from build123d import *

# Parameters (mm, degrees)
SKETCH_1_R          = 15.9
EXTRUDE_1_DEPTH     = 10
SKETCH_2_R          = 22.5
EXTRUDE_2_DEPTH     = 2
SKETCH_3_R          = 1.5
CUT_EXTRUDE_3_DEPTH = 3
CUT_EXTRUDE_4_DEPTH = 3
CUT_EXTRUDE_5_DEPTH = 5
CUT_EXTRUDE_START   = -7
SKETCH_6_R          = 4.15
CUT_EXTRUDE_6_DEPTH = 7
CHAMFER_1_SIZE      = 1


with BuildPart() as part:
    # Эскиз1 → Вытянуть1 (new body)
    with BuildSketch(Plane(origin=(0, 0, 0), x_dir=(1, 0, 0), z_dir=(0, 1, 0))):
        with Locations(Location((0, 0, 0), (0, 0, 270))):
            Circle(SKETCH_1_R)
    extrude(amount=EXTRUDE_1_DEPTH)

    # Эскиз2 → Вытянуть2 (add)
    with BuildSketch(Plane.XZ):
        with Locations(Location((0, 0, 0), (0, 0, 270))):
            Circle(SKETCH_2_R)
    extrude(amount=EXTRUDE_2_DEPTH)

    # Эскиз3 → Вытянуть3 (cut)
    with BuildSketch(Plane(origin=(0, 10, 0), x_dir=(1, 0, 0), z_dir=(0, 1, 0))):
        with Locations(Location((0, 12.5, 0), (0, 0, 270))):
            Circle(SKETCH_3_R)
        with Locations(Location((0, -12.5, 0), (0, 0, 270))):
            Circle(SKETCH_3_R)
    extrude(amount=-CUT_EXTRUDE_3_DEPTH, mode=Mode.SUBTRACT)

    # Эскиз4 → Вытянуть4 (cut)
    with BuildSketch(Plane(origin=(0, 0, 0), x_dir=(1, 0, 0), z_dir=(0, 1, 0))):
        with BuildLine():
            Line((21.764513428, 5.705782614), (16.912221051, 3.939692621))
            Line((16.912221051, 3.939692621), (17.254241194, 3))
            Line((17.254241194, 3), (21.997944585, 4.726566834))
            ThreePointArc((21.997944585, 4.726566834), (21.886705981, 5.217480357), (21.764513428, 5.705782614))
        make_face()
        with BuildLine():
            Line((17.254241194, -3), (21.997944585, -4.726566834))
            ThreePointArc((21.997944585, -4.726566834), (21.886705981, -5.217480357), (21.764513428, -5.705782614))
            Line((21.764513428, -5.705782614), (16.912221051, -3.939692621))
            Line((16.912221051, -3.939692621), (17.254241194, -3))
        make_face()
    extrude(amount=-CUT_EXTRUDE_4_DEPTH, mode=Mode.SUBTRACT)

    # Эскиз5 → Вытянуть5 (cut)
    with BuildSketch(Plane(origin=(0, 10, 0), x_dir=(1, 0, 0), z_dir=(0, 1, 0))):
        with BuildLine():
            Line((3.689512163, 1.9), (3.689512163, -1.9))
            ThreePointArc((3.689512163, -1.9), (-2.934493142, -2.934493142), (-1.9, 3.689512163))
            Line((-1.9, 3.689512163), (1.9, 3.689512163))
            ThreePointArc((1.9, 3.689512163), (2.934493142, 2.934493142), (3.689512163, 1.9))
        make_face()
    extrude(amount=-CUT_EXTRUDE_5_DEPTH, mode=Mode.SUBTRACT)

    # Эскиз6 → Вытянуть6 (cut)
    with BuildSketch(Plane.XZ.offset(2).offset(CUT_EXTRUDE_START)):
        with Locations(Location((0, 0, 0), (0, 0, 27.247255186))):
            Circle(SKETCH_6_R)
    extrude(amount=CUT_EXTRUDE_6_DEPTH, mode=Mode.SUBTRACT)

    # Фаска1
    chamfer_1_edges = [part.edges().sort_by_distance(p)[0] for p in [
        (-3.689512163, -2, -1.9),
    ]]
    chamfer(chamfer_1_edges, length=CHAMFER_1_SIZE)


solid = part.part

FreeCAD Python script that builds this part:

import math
import FreeCAD as App
import Part
import Sketcher

V = App.Vector
Q = App.Units.Quantity


def edges_at(feature, points):
    """Names of the edges that pass closest to the given points."""
    edges = feature.Shape.Edges
    near = lambda p: min(range(len(edges)), key=lambda i: edges[i].distToShape(Part.Vertex(*p))[0])
    return sorted({f"Edge{near(p) + 1}" for p in points})

doc = App.newDocument("Part")
body = doc.addObject("PartDesign::Body", "Body")

# Sketch on XZ plane
sketch1 = doc.addObject("Sketcher::SketchObject", "Sketch")
body.addObject(sketch1)
sketch1.AttachmentSupport = (doc.XZ_Plane, [""])
sketch1.MapMode = "FlatFace"
sketch1.addGeometry(Part.Circle(V(0, 0, 0), V(0, 0, 1), 16), False)
sketch1.addConstraint([
    Sketcher.Constraint("Coincident", 0, 3, -1, 1),
    Sketcher.Constraint("Diameter", 0, Q("31.8 mm")),
])
pad1 = doc.addObject("PartDesign::Pad", "Pad")
body.addObject(pad1)
pad1.Profile = sketch1
pad1.Length = 10
pad1.Reversed = True

# Sketch on XZ plane
sketch2 = doc.addObject("Sketcher::SketchObject", "Sketch001")
body.addObject(sketch2)
sketch2.AttachmentSupport = (doc.XZ_Plane, [""])
sketch2.MapMode = "FlatFace"
sketch2.addGeometry(Part.Circle(V(0, 0, 0), V(0, 0, 1), 22), False)
sketch2.addConstraint([
    Sketcher.Constraint("Coincident", 0, 3, -1, 1),
    Sketcher.Constraint("Diameter", 0, Q("45 mm")),
])
pad2 = doc.addObject("PartDesign::Pad", "Pad001")
body.addObject(pad2)
pad2.Profile = sketch2
pad2.Length = 2

# Sketch on XZ plane
sketch3 = doc.addObject("Sketcher::SketchObject", "Sketch002")
body.addObject(sketch3)
sketch3.AttachmentSupport = (doc.XZ_Plane, [""])
sketch3.MapMode = "FlatFace"
sketch3.AttachmentOffset = App.Placement(V(0, 0, -10), App.Rotation())
sketch3.addGeometry([
    Part.Circle(V(0, -12.5, 0), V(0, 0, 1), 1.5),
    Part.Circle(V(0, 12.5, 0), V(0, 0, 1), 1.5),
], False)
sketch3.addConstraint([
    Sketcher.Constraint("Equal", 0, 1),
    Sketcher.Constraint("Symmetric", 0, 3, 1, 3, -1, 1),
    Sketcher.Constraint("PointOnObject", 0, 3, -2),
    Sketcher.Constraint("Diameter", 0, Q("3 mm")),
    Sketcher.Constraint("DistanceY", 0, 3, 1, 3, Q("25 mm")),
])
pocket1 = doc.addObject("PartDesign::Pocket", "Pocket")
body.addObject(pocket1)
pocket1.Profile = sketch3
pocket1.Length = 3
pocket1.Reversed = True

# Sketch on XZ plane
sketch4 = doc.addObject("Sketcher::SketchObject", "Sketch003")
body.addObject(sketch4)
sketch4.AttachmentSupport = (doc.XZ_Plane, [""])
sketch4.MapMode = "FlatFace"
sketch4.addGeometry([
    Part.LineSegment(V(21.8, -5.7, 0), V(16.9, -3.9, 0)),  # 0
    Part.LineSegment(V(16.9, -3.9, 0), V(17.3, -3, 0)),  # 1
    Part.LineSegment(V(17.3, -3, 0), V(22, -4.7, 0)),  # 2
    Part.ArcOfCircle(Part.Circle(V(0, 0, 0), V(0, 0, 1), 22.5), math.radians(-14.69), math.radians(-12.13)),  # 3
    Part.LineSegment(V(22, 4.7, 0), V(17.3, 3, 0)),  # 4
    Part.LineSegment(V(17.3, 3, 0), V(16.9, 3.9, 0)),  # 5
    Part.LineSegment(V(16.9, 3.9, 0), V(21.8, 5.7, 0)),  # 6
    Part.ArcOfCircle(Part.Circle(V(0, 0, 0), V(0, 0, 1), 22.5), math.radians(12.13), math.radians(14.69)),  # 7
], False)
sketch4.addConstraint([
    Sketcher.Constraint("Coincident", 0, 2, 1, 1),
    Sketcher.Constraint("Coincident", 1, 2, 2, 1),
    Sketcher.Constraint("Coincident", 2, 2, 3, 2),
    Sketcher.Constraint("Coincident", 3, 1, 0, 1),
    Sketcher.Constraint("Coincident", 4, 2, 5, 1),
    Sketcher.Constraint("Coincident", 5, 2, 6, 1),
    Sketcher.Constraint("Coincident", 6, 2, 7, 2),
    Sketcher.Constraint("Coincident", 7, 1, 4, 1),
    Sketcher.Constraint("Coincident", 3, 3, -1, 1),
    Sketcher.Constraint("Coincident", 7, 3, -1, 1),
    Sketcher.Constraint("Equal", 3, 7),
    Sketcher.Constraint("Symmetric", 1, 2, 4, 2, -1),
    Sketcher.Constraint("Symmetric", 0, 2, 5, 2, -1),
    Sketcher.Constraint("Perpendicular", 0, 1),
    Sketcher.Constraint("Perpendicular", 1, 2),
    Sketcher.Constraint("Perpendicular", 4, 5),
    Sketcher.Constraint("Perpendicular", 5, 6),
    Sketcher.Constraint("Angle", 0, Q("160 deg")),
    Sketcher.Constraint("Distance", 1, Q("1 mm")),
    Sketcher.Constraint("DistanceY", 1, 2, -1, 1, Q("3 mm")),
    Sketcher.Constraint("Radius", 3, Q("22.500002 mm")),
    Sketcher.Constraint("Distance", 0, Q("5.163702 mm")),
])
pocket2 = doc.addObject("PartDesign::Pocket", "Pocket001")
body.addObject(pocket2)
pocket2.Profile = sketch4
pocket2.Length = 3
pocket2.Reversed = True

# Sketch on XZ plane
sketch5 = doc.addObject("Sketcher::SketchObject", "Sketch004")
body.addObject(sketch5)
sketch5.AttachmentSupport = (doc.XZ_Plane, [""])
sketch5.MapMode = "FlatFace"
sketch5.AttachmentOffset = App.Placement(V(0, 0, -10), App.Rotation())
sketch5.addGeometry([
    Part.LineSegment(V(3.7, 1.9, 0), V(3.7, -1.9, 0)),
    Part.ArcOfCircle(Part.Circle(V(0, 0, 0), V(0, 0, 1), 4.2), math.radians(-63), math.radians(-27)),
    Part.LineSegment(V(1.9, -3.7, 0), V(-1.9, -3.7, 0)),
    Part.ArcOfCircle(Part.Circle(V(0, 0, 0), V(0, 0, 1), 4.2), math.radians(27), math.radians(243)),
], False)
sketch5.addConstraint([
    Sketcher.Constraint("Coincident", 0, 2, 1, 2),
    Sketcher.Constraint("Coincident", 1, 1, 2, 1),
    Sketcher.Constraint("Coincident", 2, 2, 3, 2),
    Sketcher.Constraint("Coincident", 3, 1, 0, 1),
    Sketcher.Constraint("Vertical", 0),
    Sketcher.Constraint("Horizontal", 2),
    Sketcher.Constraint("Coincident", 1, 3, -1, 1),
    Sketcher.Constraint("Coincident", 3, 3, -1, 1),
    Sketcher.Constraint("Equal", 1, 3),
    Sketcher.Constraint("Equal", 2, 0),
    Sketcher.Constraint("Radius", 1, Q("4.15 mm")),
    Sketcher.Constraint("DistanceX", 2, 2, 2, 1, Q("3.8 mm")),
])
pocket3 = doc.addObject("PartDesign::Pocket", "Pocket002")
body.addObject(pocket3)
pocket3.Profile = sketch5
pocket3.Length = 5
pocket3.Reversed = True

# Sketch on XZ plane
sketch6 = doc.addObject("Sketcher::SketchObject", "Sketch005")
body.addObject(sketch6)
sketch6.AttachmentSupport = (doc.XZ_Plane, [""])
sketch6.MapMode = "FlatFace"
sketch6.AttachmentOffset = App.Placement(V(0, 0, -5), App.Rotation())
sketch6.addGeometry(Part.Circle(V(0, 0, 0), V(0, 0, 1), 4.2), False)
sketch6.addConstraint([
    Sketcher.Constraint("Coincident", 0, 3, -1, 1),
    Sketcher.Constraint("Diameter", 0, Q("8.3 mm")),
])
pocket4 = doc.addObject("PartDesign::Pocket", "Pocket003")
body.addObject(pocket4)
pocket4.Profile = sketch6
pocket4.Length = 7
pocket4.Reversed = True
doc.recompute()

chamfer = doc.addObject("PartDesign::Chamfer", "Chamfer")
body.addObject(chamfer)
chamfer.Base = (pocket4, edges_at(pocket4, [(-3.69, -2, -1.9)]))
chamfer.Size = 1

doc.recompute()
